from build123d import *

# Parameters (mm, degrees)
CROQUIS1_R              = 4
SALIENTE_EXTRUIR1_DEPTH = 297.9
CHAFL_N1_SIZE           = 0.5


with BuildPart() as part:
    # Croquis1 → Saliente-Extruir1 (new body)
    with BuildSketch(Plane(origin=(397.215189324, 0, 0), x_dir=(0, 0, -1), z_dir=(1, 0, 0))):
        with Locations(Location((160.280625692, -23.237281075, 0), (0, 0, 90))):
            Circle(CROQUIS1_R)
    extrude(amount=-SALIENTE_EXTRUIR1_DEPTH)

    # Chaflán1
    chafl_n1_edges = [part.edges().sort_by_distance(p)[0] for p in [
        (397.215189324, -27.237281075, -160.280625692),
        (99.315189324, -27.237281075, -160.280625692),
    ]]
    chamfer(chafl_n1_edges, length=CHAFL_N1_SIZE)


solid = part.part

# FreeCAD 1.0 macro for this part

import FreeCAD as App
import Part
import Sketcher
Q = App.Units.Quantity


def edges_at(feature, points):
    """Names of the edges that pass closest to the given points."""
    edges = feature.Shape.Edges
    near = lambda p: min(range(len(edges)), key=lambda i: edges[i].distToShape(Part.Vertex(*p))[0])
    return sorted({f"Edge{near(p) + 1}" for p in points})

doc = App.newDocument("Part")
body = doc.addObject("PartDesign::Body", "Body")

sketch1 = body.newObject("Sketcher::SketchObject", "Sketch")
sketch1.AttachmentSupport = (doc.getObject("YZ_Plane"), [""])
sketch1.MapMode = "FlatFace"
sketch1.AttachmentOffset = App.Placement(App.Vector(0, 0, 397.215189), App.Rotation())
sketch1.addGeometry(Part.Circle(App.Vector(-23.2, -160.3, 0), App.Vector(0, 0, 1), 4), False)
sketch1.addConstraint(Sketcher.Constraint("Diameter", 0, Q("8 mm")))
sketch1.addConstraint(Sketcher.Constraint("DistanceX", 0, 3, -1, 1, Q("23.237281 mm")))
sketch1.addConstraint(Sketcher.Constraint("DistanceY", 0, 3, -1, 1, Q("160.280626 mm")))
pad1 = body.newObject("PartDesign::Pad", "Pad")
pad1.Profile = sketch1
pad1.Length = 297.9
pad1.Reversed = True
doc.recompute()

chamfer = body.newObject("PartDesign::Chamfer", "Chamfer")
chamfer.Base = (pad1, edges_at(pad1, [(397.215, -27.237, -160.281), (99.315, -27.237, -160.281)]))
chamfer.Size = 0.5

doc.recompute()
